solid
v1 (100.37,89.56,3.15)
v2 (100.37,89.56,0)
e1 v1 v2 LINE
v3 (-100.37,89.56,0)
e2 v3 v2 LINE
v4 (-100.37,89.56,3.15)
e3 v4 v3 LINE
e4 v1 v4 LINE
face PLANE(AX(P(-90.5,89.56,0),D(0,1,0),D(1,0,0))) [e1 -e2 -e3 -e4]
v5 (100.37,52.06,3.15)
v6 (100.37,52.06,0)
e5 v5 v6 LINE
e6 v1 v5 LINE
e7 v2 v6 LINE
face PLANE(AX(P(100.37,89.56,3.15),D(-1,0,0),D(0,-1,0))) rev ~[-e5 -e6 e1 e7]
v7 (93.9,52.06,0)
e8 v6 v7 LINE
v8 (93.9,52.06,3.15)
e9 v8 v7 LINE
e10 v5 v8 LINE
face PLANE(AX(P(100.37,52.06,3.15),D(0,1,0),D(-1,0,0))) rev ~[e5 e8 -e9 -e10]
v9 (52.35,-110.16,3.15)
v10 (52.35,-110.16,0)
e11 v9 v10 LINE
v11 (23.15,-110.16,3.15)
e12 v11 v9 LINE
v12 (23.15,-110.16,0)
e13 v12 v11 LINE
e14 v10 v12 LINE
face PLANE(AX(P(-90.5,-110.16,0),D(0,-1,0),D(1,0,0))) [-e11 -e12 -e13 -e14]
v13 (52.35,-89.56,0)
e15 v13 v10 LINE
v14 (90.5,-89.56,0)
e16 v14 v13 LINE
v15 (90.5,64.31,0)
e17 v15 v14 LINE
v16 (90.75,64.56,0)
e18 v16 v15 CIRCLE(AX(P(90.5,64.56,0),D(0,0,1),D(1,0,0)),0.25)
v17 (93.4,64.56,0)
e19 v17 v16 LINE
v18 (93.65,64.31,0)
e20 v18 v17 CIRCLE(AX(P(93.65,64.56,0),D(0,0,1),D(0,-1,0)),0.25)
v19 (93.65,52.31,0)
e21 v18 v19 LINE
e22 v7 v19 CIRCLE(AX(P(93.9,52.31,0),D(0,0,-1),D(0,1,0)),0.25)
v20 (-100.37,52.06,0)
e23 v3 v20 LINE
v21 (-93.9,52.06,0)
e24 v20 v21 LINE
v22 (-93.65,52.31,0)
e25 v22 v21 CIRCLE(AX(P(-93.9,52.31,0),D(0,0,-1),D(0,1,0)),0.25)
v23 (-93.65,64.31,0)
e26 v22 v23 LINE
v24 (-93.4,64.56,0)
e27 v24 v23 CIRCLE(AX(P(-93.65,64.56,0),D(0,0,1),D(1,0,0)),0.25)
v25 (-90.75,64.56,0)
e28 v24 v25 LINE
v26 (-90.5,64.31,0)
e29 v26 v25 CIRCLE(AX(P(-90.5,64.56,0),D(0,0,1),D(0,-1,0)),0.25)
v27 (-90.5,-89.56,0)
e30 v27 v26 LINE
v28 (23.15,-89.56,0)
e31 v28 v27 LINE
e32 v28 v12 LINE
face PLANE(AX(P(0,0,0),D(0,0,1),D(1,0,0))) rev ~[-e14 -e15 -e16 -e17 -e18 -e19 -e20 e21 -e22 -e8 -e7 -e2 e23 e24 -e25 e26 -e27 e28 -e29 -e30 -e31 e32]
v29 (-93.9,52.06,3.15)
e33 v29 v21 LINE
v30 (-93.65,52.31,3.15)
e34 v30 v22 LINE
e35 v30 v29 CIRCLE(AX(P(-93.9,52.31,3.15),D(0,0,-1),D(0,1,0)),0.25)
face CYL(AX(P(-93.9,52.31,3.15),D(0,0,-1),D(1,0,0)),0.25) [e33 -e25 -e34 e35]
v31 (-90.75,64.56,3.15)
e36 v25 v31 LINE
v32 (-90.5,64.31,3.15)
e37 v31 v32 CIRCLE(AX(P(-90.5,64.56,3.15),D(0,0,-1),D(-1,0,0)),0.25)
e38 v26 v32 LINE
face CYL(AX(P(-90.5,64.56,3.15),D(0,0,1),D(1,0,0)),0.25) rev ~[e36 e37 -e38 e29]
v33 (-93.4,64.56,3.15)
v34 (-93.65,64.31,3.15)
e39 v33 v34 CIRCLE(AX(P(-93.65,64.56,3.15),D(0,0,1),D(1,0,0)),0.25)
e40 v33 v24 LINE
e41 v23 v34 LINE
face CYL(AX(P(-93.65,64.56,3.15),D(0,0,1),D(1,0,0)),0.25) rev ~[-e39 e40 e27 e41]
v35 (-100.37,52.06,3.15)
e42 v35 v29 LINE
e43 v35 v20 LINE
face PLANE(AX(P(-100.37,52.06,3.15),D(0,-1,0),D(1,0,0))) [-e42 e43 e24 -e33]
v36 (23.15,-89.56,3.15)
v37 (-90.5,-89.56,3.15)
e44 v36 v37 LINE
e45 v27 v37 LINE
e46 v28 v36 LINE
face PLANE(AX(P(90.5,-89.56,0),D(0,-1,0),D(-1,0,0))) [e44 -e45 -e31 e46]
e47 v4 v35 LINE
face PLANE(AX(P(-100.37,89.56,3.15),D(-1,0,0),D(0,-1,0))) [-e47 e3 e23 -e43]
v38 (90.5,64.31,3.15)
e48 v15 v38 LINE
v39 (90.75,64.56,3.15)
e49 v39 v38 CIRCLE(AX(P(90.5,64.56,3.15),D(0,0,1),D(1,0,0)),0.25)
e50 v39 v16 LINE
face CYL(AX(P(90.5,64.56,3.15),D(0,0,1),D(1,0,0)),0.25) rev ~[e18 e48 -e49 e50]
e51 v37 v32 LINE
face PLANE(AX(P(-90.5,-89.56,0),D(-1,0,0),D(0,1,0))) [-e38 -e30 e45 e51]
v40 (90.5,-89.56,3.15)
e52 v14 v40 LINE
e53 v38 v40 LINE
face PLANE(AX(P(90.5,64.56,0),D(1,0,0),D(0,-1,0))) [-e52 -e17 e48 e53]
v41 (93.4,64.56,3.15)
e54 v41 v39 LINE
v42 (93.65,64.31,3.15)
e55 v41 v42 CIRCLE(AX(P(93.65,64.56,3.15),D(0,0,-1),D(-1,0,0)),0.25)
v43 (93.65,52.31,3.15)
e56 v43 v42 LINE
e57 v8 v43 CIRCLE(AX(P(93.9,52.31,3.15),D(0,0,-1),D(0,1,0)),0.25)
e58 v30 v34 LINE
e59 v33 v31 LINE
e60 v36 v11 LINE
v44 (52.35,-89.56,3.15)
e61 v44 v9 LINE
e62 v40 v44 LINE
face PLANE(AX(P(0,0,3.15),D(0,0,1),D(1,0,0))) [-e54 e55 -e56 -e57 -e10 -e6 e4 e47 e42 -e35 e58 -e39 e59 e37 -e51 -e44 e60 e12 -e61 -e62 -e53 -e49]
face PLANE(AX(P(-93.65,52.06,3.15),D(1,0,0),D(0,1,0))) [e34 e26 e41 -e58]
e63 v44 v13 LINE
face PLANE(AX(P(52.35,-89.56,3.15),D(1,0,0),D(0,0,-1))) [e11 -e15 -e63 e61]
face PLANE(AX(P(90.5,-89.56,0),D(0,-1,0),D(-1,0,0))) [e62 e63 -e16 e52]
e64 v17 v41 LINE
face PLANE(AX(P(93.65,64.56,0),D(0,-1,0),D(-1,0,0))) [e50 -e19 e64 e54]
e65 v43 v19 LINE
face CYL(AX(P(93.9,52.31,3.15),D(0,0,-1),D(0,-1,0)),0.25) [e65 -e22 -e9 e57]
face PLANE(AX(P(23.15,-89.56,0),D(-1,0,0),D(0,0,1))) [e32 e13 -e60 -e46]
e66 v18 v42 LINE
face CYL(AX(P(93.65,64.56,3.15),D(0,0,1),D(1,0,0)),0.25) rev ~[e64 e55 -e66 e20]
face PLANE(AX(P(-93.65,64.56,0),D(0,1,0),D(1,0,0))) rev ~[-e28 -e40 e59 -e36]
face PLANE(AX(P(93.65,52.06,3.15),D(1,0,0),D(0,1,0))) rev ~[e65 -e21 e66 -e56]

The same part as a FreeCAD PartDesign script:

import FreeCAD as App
import Part
import Sketcher

V = App.Vector


def edges_at(feature, points):
    """Names of the edges that pass closest to the given points."""
    edges = feature.Shape.Edges
    near = lambda p: min(range(len(edges)), key=lambda i: edges[i].distToShape(Part.Vertex(*p))[0])
    return sorted({f"Edge{near(p) + 1}" for p in points})


def add_polygon(sketch, points):
    """Adds a closed chain of lines whose ends are joined by coincident constraints."""
    first, n = sketch.GeometryCount, len(points)
    for a, b in zip(points, points[1:] + points[:1]):
        sketch.addGeometry(Part.LineSegment(App.Vector(*a, 0), App.Vector(*b, 0)), False)
    for i in range(n):
        sketch.addConstraint(Sketcher.Constraint("Coincident", first + i, 2, first + (i + 1) % n, 1))

doc = App.newDocument("Part")
body = doc.addObject("PartDesign::Body", "Body")

sketch1 = body.newObject("Sketcher::SketchObject", "Sketch")
sketch1.AttachmentSupport = (doc.getObject("XY_Plane"), [""])
sketch1.MapMode = "FlatFace"
add_polygon(sketch1, [(-90.5, -89.56), (90.5, -89.56), (90.5, 64.56), (93.65, 64.56), (93.65, 89.56), (-93.65, 89.56), (-93.65, 64.56), (-90.5, 64.56)])
sketch1.addConstraint([
    Sketcher.Constraint("Horizontal", 0),
    Sketcher.Constraint("Vertical", 1),
    Sketcher.Constraint("Horizontal", 2),
    Sketcher.Constraint("Vertical", 3),
    Sketcher.Constraint("Horizontal", 4),
    Sketcher.Constraint("Vertical", 5),
    Sketcher.Constraint("Horizontal", 6),
    Sketcher.Constraint("Vertical", 7),
    Sketcher.Constraint("Symmetric", 2, 2, 5, 2, -2),
    Sketcher.Constraint("Equal", 2, 6),
    Sketcher.Constraint("DistanceX", 0, 1, 0, 2, 181.0),
    Sketcher.Constraint("DistanceY", 3, 1, 3, 2, 25.0),
    Sketcher.Constraint("DistanceX", 2, 1, 2, 2, 3.15),
    Sketcher.Constraint("DistanceY", 0, 2, 3, 2, 179.12),
    Sketcher.Constraint("DistanceY", 0, 2, -1, 1, 89.56),
])
pad1 = body.newObject("PartDesign::Pad", "Pad")
pad1.Profile = sketch1
pad1.Length = 3.15

sketch2 = body.newObject("Sketcher::SketchObject", "Sketch001")
sketch2.AttachmentSupport = (doc.getObject("XY_Plane"), [""])
sketch2.MapMode = "FlatFace"
sketch2.AttachmentOffset = App.Placement(V(0, 0, 3.15), App.Rotation())
add_polygon(sketch2, [(-93.65, 52.06), (-93.65, 89.56), (-100.37, 89.56), (-100.37, 52.06)])
add_polygon(sketch2, [(100.37, 89.56), (93.65, 89.56), (93.65, 52.06), (100.37, 52.06)])
sketch2.addConstraint([
    Sketcher.Constraint("Vertical", 0),
    Sketcher.Constraint("Horizontal", 1),
    Sketcher.Constraint("Vertical", 2),
    Sketcher.Constraint("Horizontal", 3),
    Sketcher.Constraint("Horizontal", 4),
    Sketcher.Constraint("Vertical", 5),
    Sketcher.Constraint("Horizontal", 6),
    Sketcher.Constraint("Vertical", 7),
    Sketcher.Constraint("Symmetric", 0, 2, 4, 2, -2),
    Sketcher.Constraint("Symmetric", 2, 2, 6, 2, -2),
    Sketcher.Constraint("DistanceX", 1, 2, 1, 1, 6.72),
    Sketcher.Constraint("DistanceY", 0, 1, 0, 2, 37.5),
    Sketcher.Constraint("DistanceX", 0, 2, 4, 2, 187.3),
    Sketcher.Constraint("DistanceY", -1, 1, 0, 2, 89.56),
])
pad2 = body.newObject("PartDesign::Pad", "Pad001")
pad2.Profile = sketch2
pad2.Length = 3.15
pad2.Reversed = True

sketch3 = body.newObject("Sketcher::SketchObject", "Sketch002")
sketch3.AttachmentSupport = (doc.getObject("XY_Plane"), [""])
sketch3.MapMode = "FlatFace"
sketch3.AttachmentOffset = App.Placement(V(0, 0, 3.15), App.Rotation())
sketch3.addGeometry([
    Part.Circle(V(-90.5, 64.56, 0), V(0, 0, 1), 0.25),
    Part.Circle(V(-93.65, 64.56, 0), V(0, 0, 1), 0.25),
    Part.Circle(V(93.65, 64.56, 0), V(0, 0, 1), 0.25),
    Part.Circle(V(90.5, 64.56, 0), V(0, 0, 1), 0.25),
], False)
sketch3.addConstraint([
    Sketcher.Constraint("Equal", 0, 1),
    Sketcher.Constraint("Equal", 1, 2),
    Sketcher.Constraint("Equal", 2, 3),
    Sketcher.Constraint("Symmetric", 1, 3, 2, 3, -2),
    Sketcher.Constraint("Symmetric", 0, 3, 3, 3, -2),
    Sketcher.Constraint("Horizontal", 0, 3, 1, 3),
    Sketcher.Constraint("Diameter", 0, 0.5),
    Sketcher.Constraint("DistanceX", 0, 3, 3, 3, 181.0),
    Sketcher.Constraint("DistanceX", 1, 3, 2, 3, 187.3),
    Sketcher.Constraint("DistanceY", -1, 1, 0, 3, 64.56),
])
pocket1 = body.newObject("PartDesign::Pocket", "Pocket")
pocket1.Profile = sketch3
pocket1.Length = 3.15
doc.recompute()

fillet = body.newObject("PartDesign::Fillet", "Fillet")
fillet.Base = (pocket1, edges_at(pocket1, [(-93.65, 52.06, 1.575), (93.65, 52.06, 1.575)]))
fillet.Radius = 0.25

sketch4 = body.newObject("Sketcher::SketchObject", "Sketch003")
sketch4.AttachmentSupport = (doc.getObject("XZ_Plane"), [""])
sketch4.MapMode = "FlatFace"
sketch4.AttachmentOffset = App.Placement(V(0, 0, 89.56), App.Rotation())
add_polygon(sketch4, [(23.15, 3.15), (23.15, 0), (52.35, 0), (52.35, 3.15)])
sketch4.addConstraint([
    Sketcher.Constraint("Vertical", 0),
    Sketcher.Constraint("Horizontal", 1),
    Sketcher.Constraint("Vertical", 2),
    Sketcher.Constraint("Horizontal", 3),
    Sketcher.Constraint("PointOnObject", 0, 2, -1),
    Sketcher.Constraint("DistanceX", 1, 1, 1, 2, 29.2),
    Sketcher.Constraint("DistanceY", 0, 2, 0, 1, 3.15),
    Sketcher.Constraint("DistanceX", -1, 1, 0, 2, 23.15),
])
pad3 = body.newObject("PartDesign::Pad", "Pad002")
pad3.Profile = sketch4
pad3.Length = 20.6

doc.recompute()
